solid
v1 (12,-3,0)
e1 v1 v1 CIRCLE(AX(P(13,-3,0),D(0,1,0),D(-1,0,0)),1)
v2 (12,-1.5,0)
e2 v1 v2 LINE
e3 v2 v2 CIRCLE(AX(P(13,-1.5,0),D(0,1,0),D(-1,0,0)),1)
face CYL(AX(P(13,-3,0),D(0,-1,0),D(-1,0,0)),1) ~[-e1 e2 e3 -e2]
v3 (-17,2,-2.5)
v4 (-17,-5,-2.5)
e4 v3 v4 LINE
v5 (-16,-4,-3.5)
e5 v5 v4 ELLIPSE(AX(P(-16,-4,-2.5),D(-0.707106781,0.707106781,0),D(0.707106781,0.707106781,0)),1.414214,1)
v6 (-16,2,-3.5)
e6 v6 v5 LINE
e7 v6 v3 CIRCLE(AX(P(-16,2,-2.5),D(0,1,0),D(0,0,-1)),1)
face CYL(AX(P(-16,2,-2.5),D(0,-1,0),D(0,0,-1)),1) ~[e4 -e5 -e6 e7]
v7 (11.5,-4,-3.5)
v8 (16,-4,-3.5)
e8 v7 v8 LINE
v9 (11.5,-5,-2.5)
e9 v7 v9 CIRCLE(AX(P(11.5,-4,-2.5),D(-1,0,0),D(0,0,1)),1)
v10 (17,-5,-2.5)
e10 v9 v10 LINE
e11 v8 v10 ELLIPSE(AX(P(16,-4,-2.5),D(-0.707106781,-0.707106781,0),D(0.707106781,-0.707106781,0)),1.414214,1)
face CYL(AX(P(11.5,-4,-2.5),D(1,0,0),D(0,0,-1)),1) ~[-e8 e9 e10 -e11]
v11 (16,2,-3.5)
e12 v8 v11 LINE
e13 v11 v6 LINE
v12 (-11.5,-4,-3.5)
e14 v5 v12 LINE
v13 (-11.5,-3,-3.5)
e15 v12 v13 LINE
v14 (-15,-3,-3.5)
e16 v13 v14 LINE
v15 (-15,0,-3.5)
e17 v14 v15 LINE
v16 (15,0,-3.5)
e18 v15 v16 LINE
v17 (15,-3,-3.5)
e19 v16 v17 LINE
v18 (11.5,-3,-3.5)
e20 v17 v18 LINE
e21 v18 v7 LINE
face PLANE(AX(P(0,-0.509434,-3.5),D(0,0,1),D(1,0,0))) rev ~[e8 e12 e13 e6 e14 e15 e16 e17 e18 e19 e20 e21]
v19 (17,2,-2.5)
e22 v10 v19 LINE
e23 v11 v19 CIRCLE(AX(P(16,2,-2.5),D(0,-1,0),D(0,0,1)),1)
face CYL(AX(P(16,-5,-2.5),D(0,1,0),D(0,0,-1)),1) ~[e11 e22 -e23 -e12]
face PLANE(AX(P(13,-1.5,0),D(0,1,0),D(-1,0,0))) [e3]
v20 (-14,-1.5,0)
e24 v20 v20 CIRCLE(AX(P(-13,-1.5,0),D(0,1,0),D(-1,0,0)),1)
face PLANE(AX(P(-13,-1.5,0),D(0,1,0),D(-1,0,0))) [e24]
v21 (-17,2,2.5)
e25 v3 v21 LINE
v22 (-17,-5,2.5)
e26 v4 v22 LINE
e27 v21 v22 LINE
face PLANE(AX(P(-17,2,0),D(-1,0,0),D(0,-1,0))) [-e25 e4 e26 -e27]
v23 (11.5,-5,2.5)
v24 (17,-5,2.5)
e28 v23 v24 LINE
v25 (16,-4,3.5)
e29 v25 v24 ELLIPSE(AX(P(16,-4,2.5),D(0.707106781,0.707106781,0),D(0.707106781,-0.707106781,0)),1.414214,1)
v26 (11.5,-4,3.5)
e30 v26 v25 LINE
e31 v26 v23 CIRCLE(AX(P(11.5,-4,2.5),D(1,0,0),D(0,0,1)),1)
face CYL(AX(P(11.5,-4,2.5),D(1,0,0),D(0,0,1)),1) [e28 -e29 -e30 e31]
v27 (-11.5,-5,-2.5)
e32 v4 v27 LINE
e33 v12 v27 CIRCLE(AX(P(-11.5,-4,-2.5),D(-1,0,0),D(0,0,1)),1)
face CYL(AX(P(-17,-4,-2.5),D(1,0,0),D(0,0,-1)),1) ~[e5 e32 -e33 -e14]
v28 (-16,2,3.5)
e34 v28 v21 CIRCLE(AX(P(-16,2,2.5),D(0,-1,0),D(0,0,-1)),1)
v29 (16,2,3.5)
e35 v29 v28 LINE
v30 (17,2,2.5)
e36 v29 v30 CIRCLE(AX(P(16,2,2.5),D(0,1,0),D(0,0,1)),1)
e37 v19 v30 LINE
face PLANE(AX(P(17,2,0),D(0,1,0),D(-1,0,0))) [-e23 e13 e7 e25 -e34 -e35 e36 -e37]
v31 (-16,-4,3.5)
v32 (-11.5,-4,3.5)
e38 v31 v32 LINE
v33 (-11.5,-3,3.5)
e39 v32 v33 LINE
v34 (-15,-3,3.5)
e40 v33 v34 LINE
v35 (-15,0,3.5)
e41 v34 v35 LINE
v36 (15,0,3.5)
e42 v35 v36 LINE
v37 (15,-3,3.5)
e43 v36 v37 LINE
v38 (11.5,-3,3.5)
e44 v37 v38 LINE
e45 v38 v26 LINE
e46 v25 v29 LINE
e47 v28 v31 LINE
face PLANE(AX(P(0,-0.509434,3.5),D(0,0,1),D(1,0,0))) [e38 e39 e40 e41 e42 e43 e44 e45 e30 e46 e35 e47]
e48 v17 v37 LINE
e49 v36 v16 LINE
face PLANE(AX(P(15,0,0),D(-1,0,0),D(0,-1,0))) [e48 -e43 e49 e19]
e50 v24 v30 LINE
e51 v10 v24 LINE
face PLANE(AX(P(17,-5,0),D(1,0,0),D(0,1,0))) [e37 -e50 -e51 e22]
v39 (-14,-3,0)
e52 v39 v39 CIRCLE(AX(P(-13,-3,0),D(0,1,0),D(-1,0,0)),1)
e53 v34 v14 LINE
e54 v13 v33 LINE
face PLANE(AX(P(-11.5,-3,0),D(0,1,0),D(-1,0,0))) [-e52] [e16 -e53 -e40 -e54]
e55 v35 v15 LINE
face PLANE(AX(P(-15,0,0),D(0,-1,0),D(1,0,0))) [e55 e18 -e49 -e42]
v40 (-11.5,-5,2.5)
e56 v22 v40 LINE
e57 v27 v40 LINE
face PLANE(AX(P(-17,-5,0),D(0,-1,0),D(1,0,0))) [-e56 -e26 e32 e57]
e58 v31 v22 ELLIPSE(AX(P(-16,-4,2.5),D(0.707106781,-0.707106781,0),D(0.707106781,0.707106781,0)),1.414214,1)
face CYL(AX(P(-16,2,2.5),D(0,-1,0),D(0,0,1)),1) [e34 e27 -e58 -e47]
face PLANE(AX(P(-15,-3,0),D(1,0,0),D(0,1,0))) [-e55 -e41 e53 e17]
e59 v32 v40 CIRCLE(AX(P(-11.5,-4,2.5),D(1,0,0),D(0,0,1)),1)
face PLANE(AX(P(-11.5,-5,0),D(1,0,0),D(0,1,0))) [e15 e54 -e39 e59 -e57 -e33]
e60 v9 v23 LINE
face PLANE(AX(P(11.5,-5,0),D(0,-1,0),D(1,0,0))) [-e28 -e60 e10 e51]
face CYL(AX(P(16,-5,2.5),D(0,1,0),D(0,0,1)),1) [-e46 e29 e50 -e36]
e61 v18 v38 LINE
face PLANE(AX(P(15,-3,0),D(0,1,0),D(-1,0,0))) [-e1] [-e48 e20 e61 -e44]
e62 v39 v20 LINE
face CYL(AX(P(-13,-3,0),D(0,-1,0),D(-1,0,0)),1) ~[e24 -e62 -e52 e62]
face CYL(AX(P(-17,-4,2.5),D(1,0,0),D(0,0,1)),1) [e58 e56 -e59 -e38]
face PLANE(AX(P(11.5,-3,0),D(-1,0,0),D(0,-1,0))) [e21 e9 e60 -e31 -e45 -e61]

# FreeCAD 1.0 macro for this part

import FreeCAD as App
import Part
import Sketcher

V = App.Vector


def edges_at(feature, points):
    """Names of the edges that pass closest to the given points."""
    edges = feature.Shape.Edges
    near = lambda p: min(range(len(edges)), key=lambda i: edges[i].distToShape(Part.Vertex(*p))[0])
    return sorted({f"Edge{near(p) + 1}" for p in points})


def add_polygon(sketch, points):
    """Adds a closed chain of lines whose ends are joined by coincident constraints."""
    first, n = sketch.GeometryCount, len(points)
    for a, b in zip(points, points[1:] + points[:1]):
        sketch.addGeometry(Part.LineSegment(App.Vector(*a, 0), App.Vector(*b, 0)), False)
    for i in range(n):
        sketch.addConstraint(Sketcher.Constraint("Coincident", first + i, 2, first + (i + 1) % n, 1))

doc = App.newDocument("Part")
body = doc.addObject("PartDesign::Body", "Body")

# Sketch on XY plane
sketch1 = body.newObject("Sketcher::SketchObject", "Sketch")
sketch1.AttachmentSupport = (doc.getObject("XY_Plane"), [""])
sketch1.MapMode = "FlatFace"
add_polygon(sketch1, [(15, 0), (15, -3), (11.5, -3), (11.5, -5), (17, -5), (17, 2), (-17, 2), (-17, -5), (-11.5, -5), (-11.5, -3), (-15, -3), (-15, 0)])  # lines 0-11
sketch1.addConstraint([
    Sketcher.Constraint("Vertical", 0),
    Sketcher.Constraint("Horizontal", 1),
    Sketcher.Constraint("Vertical", 2),
    Sketcher.Constraint("Horizontal", 3),
    Sketcher.Constraint("Vertical", 4),
    Sketcher.Constraint("Horizontal", 5),
    Sketcher.Constraint("Vertical", 6),
    Sketcher.Constraint("Horizontal", 7),
    Sketcher.Constraint("Vertical", 8),
    Sketcher.Constraint("Horizontal", 9),
    Sketcher.Constraint("Vertical", 10),
    Sketcher.Constraint("Horizontal", 11),
    Sketcher.Constraint("Symmetric", 10, 2, 11, 2, -1, 1),
    Sketcher.Constraint("Symmetric", 3, 2, 6, 2, -2),
    Sketcher.Constraint("Symmetric", 1, 2, 8, 2, -2),
    Sketcher.Constraint("DistanceX", 5, 2, 5, 1, 34.0),
    Sketcher.Constraint("DistanceX", 11, 1, 11, 2, 30.0),
    Sketcher.Constraint("DistanceY", 0, 2, 0, 1, 3.0),
    Sketcher.Constraint("DistanceY", 2, 2, 2, 1, 2.0),
    Sketcher.Constraint("DistanceY", 4, 1, 4, 2, 7.0),
    Sketcher.Constraint("DistanceX", 1, 2, 1, 1, 3.5),
])
pad1 = body.newObject("PartDesign::Pad", "Pad")
pad1.Profile = sketch1
pad1.Length = 7
pad1.Midplane = True

# Sketch on XZ plane
sketch2 = body.newObject("Sketcher::SketchObject", "Sketch001")
sketch2.AttachmentSupport = (doc.getObject("XZ_Plane"), [""])
sketch2.MapMode = "FlatFace"
sketch2.AttachmentOffset = App.Placement(V(0, 0, 3), App.Rotation())
sketch2.addGeometry([
    Part.Circle(V(13, 0, 0), V(0, 0, 1), 1),
    Part.Circle(V(-13, 0, 0), V(0, 0, 1), 1),
], False)
sketch2.addConstraint([
    Sketcher.Constraint("Equal", 0, 1),
    Sketcher.Constraint("Symmetric", 0, 3, 1, 3, -1, 1),
    Sketcher.Constraint("PointOnObject", 0, 3, -1),
    Sketcher.Constraint("Diameter", 0, 2.0),
    Sketcher.Constraint("DistanceX", -1, 1, 0, 3, 13.0),
])
pad2 = body.newObject("PartDesign::Pad", "Pad001")
pad2.Profile = sketch2
pad2.Length = 1.5
pad2.Reversed = True
doc.recompute()

fillet = body.newObject("PartDesign::Fillet", "Fillet")
fillet.Base = (pad2, edges_at(pad2, [
    (14.25, -5, 3.5),
    (-14.25, -5, 3.5),
    (-14.25, -5, -3.5),
    (14.25, -5, -3.5),
    (-17, -1.5, 3.5),
    (17, -1.5, 3.5),
    (17, -1.5, -3.5),
    (-17, -1.5, -3.5),
]))
fillet.Radius = 1

doc.recompute()
